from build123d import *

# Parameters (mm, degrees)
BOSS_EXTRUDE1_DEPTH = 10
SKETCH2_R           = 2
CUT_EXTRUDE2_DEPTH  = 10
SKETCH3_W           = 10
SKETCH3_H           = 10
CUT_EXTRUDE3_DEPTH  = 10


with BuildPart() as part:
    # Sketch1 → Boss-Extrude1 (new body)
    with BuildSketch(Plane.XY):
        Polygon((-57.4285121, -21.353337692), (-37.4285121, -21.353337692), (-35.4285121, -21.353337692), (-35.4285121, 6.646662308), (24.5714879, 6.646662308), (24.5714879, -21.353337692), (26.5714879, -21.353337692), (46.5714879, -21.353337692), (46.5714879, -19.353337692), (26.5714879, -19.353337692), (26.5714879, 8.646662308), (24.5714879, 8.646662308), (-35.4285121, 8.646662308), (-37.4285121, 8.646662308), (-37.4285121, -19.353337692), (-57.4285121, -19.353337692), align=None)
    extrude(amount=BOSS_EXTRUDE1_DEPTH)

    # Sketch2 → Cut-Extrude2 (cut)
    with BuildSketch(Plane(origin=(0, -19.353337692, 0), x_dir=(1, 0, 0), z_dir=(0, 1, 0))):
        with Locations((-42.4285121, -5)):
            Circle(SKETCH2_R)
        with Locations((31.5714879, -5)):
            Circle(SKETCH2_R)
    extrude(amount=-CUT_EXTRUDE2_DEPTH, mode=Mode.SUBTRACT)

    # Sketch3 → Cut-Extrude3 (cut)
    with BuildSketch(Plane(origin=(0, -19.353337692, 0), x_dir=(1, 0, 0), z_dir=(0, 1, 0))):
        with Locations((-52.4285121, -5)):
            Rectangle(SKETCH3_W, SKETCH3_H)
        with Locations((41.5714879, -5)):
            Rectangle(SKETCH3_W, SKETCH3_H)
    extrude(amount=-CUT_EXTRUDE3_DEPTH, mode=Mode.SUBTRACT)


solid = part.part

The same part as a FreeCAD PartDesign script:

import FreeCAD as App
import Part
import Sketcher
from FreeCAD import Vector

doc = App.newDocument("Part")
params = doc.addObject("Spreadsheet::Sheet", "Params")
for row, (alias, value) in enumerate([
    ("sketch1_width", "22 mm"),
    ("sketch1_width2", "60 mm"),
    ("sketch1_width3", "20 mm"),
    ("sketch1_height", "28 mm"),
    ("sketch1_height2", "2 mm"),
    ("pad1_length", "10 mm"),
    ("sketch2_diameter", "4 mm"),
    ("pocket1_length", "10 mm"),
    ("sketch3_width", "10 mm"),
    ("pocket2_length", "10 mm"),
], start=1):
    params.set(f"A{row}", alias)
    params.set(f"B{row}", "=" + value)
    params.setAlias(f"B{row}", alias)

body = doc.addObject("PartDesign::Body", "Body")

sketch1 = body.newObject("Sketcher::SketchObject", "Sketch")
sketch1.AttachmentSupport = (doc.getObject("XY_Plane"), [""])
sketch1.MapMode = "FlatFace"
sketch1.addGeometry([
    Part.LineSegment(Vector(-57.4, -21.4, 0), Vector(-35.4, -21.4, 0)),
    Part.LineSegment(Vector(-35.4, -21.4, 0), Vector(-35.4, 6.6, 0)),
    Part.LineSegment(Vector(-35.4, 6.6, 0), Vector(24.6, 6.6, 0)),
    Part.LineSegment(Vector(24.6, 6.6, 0), Vector(24.6, -21.4, 0)),
    Part.LineSegment(Vector(24.6, -21.4, 0), Vector(46.6, -21.4, 0)),
    Part.LineSegment(Vector(46.6, -21.4, 0), Vector(46.6, -19.4, 0)),
    Part.LineSegment(Vector(46.6, -19.4, 0), Vector(26.6, -19.4, 0)),
    Part.LineSegment(Vector(26.6, -19.4, 0), Vector(26.6, 8.6, 0)),
    Part.LineSegment(Vector(26.6, 8.6, 0), Vector(-37.4, 8.6, 0)),
    Part.LineSegment(Vector(-37.4, 8.6, 0), Vector(-37.4, -19.4, 0)),
    Part.LineSegment(Vector(-37.4, -19.4, 0), Vector(-57.4, -19.4, 0)),
    Part.LineSegment(Vector(-57.4, -19.4, 0), Vector(-57.4, -21.4, 0)),
], False)
sketch1.addConstraint([
    Sketcher.Constraint("Coincident", 0, 2, 1, 1),
    Sketcher.Constraint("Coincident", 1, 2, 2, 1),
    Sketcher.Constraint("Coincident", 2, 2, 3, 1),
    Sketcher.Constraint("Coincident", 3, 2, 4, 1),
    Sketcher.Constraint("Coincident", 4, 2, 5, 1),
    Sketcher.Constraint("Coincident", 5, 2, 6, 1),
    Sketcher.Constraint("Coincident", 6, 2, 7, 1),
    Sketcher.Constraint("Coincident", 7, 2, 8, 1),
    Sketcher.Constraint("Coincident", 8, 2, 9, 1),
    Sketcher.Constraint("Coincident", 9, 2, 10, 1),
    Sketcher.Constraint("Coincident", 10, 2, 11, 1),
    Sketcher.Constraint("Coincident", 11, 2, 0, 1),
    Sketcher.Constraint("Horizontal", 0),
    Sketcher.Constraint("Vertical", 1),
    Sketcher.Constraint("Horizontal", 2),
    Sketcher.Constraint("Vertical", 3),
    Sketcher.Constraint("Horizontal", 4),
    Sketcher.Constraint("Vertical", 5),
    Sketcher.Constraint("Horizontal", 6),
    Sketcher.Constraint("Vertical", 7),
    Sketcher.Constraint("Horizontal", 8),
    Sketcher.Constraint("Vertical", 9),
    Sketcher.Constraint("Horizontal", 10),
    Sketcher.Constraint("Vertical", 11),
    Sketcher.Constraint("Horizontal", 0, 2, 3, 2),
    Sketcher.Constraint("Horizontal", 6, 2, 9, 2),
    Sketcher.Constraint("Equal", 0, 4),
    Sketcher.Constraint("Equal", 6, 10),
    Sketcher.Constraint("Equal", 3, 7),
    Sketcher.Constraint("DistanceX", 0, 1, 0, 2, 22.0),
    Sketcher.Constraint("DistanceX", 2, 1, 2, 2, 60.0),
    Sketcher.Constraint("DistanceX", 6, 2, 6, 1, 20.0),
    Sketcher.Constraint("DistanceY", 1, 1, 1, 2, 28.0),
    Sketcher.Constraint("DistanceY", 5, 1, 5, 2, 2.0),
    Sketcher.Constraint("DistanceX", 0, 2, -1, 1, 35.428512),
    Sketcher.Constraint("DistanceY", 0, 2, -1, 1, 21.353338),
])
sketch1.setExpression("Constraints[29]", "Params.sketch1_width")
sketch1.setExpression("Constraints[30]", "Params.sketch1_width2")
sketch1.setExpression("Constraints[31]", "Params.sketch1_width3")
sketch1.setExpression("Constraints[32]", "Params.sketch1_height")
sketch1.setExpression("Constraints[33]", "Params.sketch1_height2")
pad1 = body.newObject("PartDesign::Pad", "Pad")
pad1.Profile = sketch1
pad1.setExpression("Length", "Params.pad1_length")

sketch2 = body.newObject("Sketcher::SketchObject", "Sketch001")
sketch2.AttachmentSupport = (doc.getObject("XZ_Plane"), [""])
sketch2.MapMode = "FlatFace"
sketch2.AttachmentOffset = App.Placement(Vector(0, 0, 19.353338), App.Rotation())
sketch2.addGeometry([
    Part.Circle(Vector(-42.4, 5, 0), Vector(0, 0, 1), 2),
    Part.Circle(Vector(31.6, 5, 0), Vector(0, 0, 1), 2),
], False)
sketch2.addConstraint([
    Sketcher.Constraint("Equal", 0, 1),
    Sketcher.Constraint("Horizontal", 0, 3, 1, 3),
    Sketcher.Constraint("Diameter", 0, 4.0),
    Sketcher.Constraint("DistanceY", -1, 1, 0, 3, 5.0),
    Sketcher.Constraint("DistanceX", 0, 3, 1, 3, 74.0),
    Sketcher.Constraint("DistanceX", 0, 3, -1, 1, 42.428512),
])
sketch2.setExpression("Constraints[2]", "Params.sketch2_diameter")
pocket1 = body.newObject("PartDesign::Pocket", "Pocket")
pocket1.Profile = sketch2
pocket1.setExpression("Length", "Params.pocket1_length")
pocket1.Reversed = True

sketch3 = body.newObject("Sketcher::SketchObject", "Sketch002")
sketch3.AttachmentSupport = (doc.getObject("XZ_Plane"), [""])
sketch3.MapMode = "FlatFace"
sketch3.AttachmentOffset = App.Placement(Vector(0, 0, 19.353338), App.Rotation())
sketch3.addGeometry([
    Part.LineSegment(Vector(-57, 0, 0), Vector(-57, 10, 0)),
    Part.LineSegment(Vector(-57, 10, 0), Vector(-47, 10, 0)),
    Part.LineSegment(Vector(-47, 10, 0), Vector(-47, 0, 0)),
    Part.LineSegment(Vector(-47, 0, 0), Vector(-57, 0, 0)),
    Part.LineSegment(Vector(37, 0, 0), Vector(37, 10, 0)),
    Part.LineSegment(Vector(37, 10, 0), Vector(47, 10, 0)),
    Part.LineSegment(Vector(47, 10, 0), Vector(47, 0, 0)),
    Part.LineSegment(Vector(47, 0, 0), Vector(37, 0, 0)),
], False)
sketch3.addConstraint([
    Sketcher.Constraint("Coincident", 0, 2, 1, 1),
    Sketcher.Constraint("Coincident", 1, 2, 2, 1),
    Sketcher.Constraint("Coincident", 2, 2, 3, 1),
    Sketcher.Constraint("Coincident", 3, 2, 0, 1),
    Sketcher.Constraint("Coincident", 4, 2, 5, 1),
    Sketcher.Constraint("Coincident", 5, 2, 6, 1),
    Sketcher.Constraint("Coincident", 6, 2, 7, 1),
    Sketcher.Constraint("Coincident", 7, 2, 4, 1),
    Sketcher.Constraint("Vertical", 0),
    Sketcher.Constraint("Horizontal", 1),
    Sketcher.Constraint("Vertical", 2),
    Sketcher.Constraint("Horizontal", 3),
    Sketcher.Constraint("Vertical", 4),
    Sketcher.Constraint("Horizontal", 5),
    Sketcher.Constraint("Vertical", 6),
    Sketcher.Constraint("Horizontal", 7),
    Sketcher.Constraint("PointOnObject", 2, 2, -1),
    Sketcher.Constraint("PointOnObject", 6, 2, -1),
    Sketcher.Constraint("Horizontal", 1, 2, 4, 2),
    Sketcher.Constraint("Equal", 3, 5),
    Sketcher.Constraint("Equal", 7, 0),
    Sketcher.Constraint("DistanceX", 1, 1, 1, 2, 10.0),
    Sketcher.Constraint("DistanceX", 1, 2, 4, 2, 84.0),
    Sketcher.Constraint("DistanceX", 0, 2, -1, 1, 57.428512),
])
sketch3.setExpression("Constraints[21]", "Params.sketch3_width")
pocket2 = body.newObject("PartDesign::Pocket", "Pocket001")
pocket2.Profile = sketch3
pocket2.setExpression("Length", "Params.pocket2_length")
pocket2.Reversed = True

doc.recompute()
